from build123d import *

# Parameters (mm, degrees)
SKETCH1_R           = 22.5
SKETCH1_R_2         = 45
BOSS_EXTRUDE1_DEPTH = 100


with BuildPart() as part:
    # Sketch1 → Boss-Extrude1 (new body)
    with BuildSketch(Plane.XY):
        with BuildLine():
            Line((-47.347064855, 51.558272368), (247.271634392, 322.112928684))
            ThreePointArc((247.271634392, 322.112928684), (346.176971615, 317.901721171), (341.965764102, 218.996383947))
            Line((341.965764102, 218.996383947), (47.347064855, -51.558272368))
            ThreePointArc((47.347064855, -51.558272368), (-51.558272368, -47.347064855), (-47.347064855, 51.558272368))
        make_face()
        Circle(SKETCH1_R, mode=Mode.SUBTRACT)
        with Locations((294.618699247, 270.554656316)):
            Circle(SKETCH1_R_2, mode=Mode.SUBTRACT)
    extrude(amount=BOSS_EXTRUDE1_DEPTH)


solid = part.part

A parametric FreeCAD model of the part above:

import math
import FreeCAD as App
import Part
import Sketcher
Q = App.Units.Quantity

doc = App.newDocument("Part")
body = doc.addObject("PartDesign::Body", "Body")

# Sketch on XY plane
sketch1 = doc.addObject("Sketcher::SketchObject", "Sketch")
body.addObject(sketch1)
sketch1.AttachmentSupport = (doc.XY_Plane, [""])
sketch1.MapMode = "FlatFace"
sketch1.addGeometry([
    Part.LineSegment(App.Vector(247.271634, 322.112929, 0), App.Vector(-47.347065, 51.558272, 0)),  # 0
    Part.ArcOfCircle(Part.Circle(App.Vector(0, 0, 0), App.Vector(0, 0, 1), 70), math.radians(132.561924), math.radians(312.561924)),  # 1
    Part.LineSegment(App.Vector(47.347065, -51.558272, 0), App.Vector(341.965764, 218.996384, 0)),  # 2
    Part.ArcOfCircle(Part.Circle(App.Vector(294.618699, 270.554656, 0), App.Vector(0, 0, 1), 70), math.radians(-47.438076), math.radians(132.561924)),  # 3
    Part.Circle(App.Vector(0, 0, 0), App.Vector(0, 0, 1), 22.5),  # 4
    Part.Circle(App.Vector(294.618699, 270.554656, 0), App.Vector(0, 0, 1), 45),  # 5
], False)
sketch1.addConstraint([
    Sketcher.Constraint("Tangent", 0, 2, 1, 1),
    Sketcher.Constraint("Tangent", 1, 2, 2, 1),
    Sketcher.Constraint("Tangent", 2, 2, 3, 1),
    Sketcher.Constraint("Tangent", 3, 2, 0, 1),
    Sketcher.Constraint("Coincident", 1, 3, -1, 1),
    Sketcher.Constraint("Coincident", 4, 3, -1, 1),
    Sketcher.Constraint("Coincident", 5, 3, 3, 3),
    Sketcher.Constraint("Equal", 1, 3),
    Sketcher.Constraint("Diameter", 4, Q("45 mm")),
    Sketcher.Constraint("Diameter", 5, Q("90 mm")),
    Sketcher.Constraint("Radius", 1, Q("70 mm")),
    Sketcher.Constraint("Distance", 0, Q("400 mm")),
    Sketcher.Constraint("DistanceX", -1, 1, 3, 3, Q("294.618699 mm")),
])
pad1 = doc.addObject("PartDesign::Pad", "Pad")
body.addObject(pad1)
pad1.Profile = sketch1
pad1.Length = 100

doc.recompute()
